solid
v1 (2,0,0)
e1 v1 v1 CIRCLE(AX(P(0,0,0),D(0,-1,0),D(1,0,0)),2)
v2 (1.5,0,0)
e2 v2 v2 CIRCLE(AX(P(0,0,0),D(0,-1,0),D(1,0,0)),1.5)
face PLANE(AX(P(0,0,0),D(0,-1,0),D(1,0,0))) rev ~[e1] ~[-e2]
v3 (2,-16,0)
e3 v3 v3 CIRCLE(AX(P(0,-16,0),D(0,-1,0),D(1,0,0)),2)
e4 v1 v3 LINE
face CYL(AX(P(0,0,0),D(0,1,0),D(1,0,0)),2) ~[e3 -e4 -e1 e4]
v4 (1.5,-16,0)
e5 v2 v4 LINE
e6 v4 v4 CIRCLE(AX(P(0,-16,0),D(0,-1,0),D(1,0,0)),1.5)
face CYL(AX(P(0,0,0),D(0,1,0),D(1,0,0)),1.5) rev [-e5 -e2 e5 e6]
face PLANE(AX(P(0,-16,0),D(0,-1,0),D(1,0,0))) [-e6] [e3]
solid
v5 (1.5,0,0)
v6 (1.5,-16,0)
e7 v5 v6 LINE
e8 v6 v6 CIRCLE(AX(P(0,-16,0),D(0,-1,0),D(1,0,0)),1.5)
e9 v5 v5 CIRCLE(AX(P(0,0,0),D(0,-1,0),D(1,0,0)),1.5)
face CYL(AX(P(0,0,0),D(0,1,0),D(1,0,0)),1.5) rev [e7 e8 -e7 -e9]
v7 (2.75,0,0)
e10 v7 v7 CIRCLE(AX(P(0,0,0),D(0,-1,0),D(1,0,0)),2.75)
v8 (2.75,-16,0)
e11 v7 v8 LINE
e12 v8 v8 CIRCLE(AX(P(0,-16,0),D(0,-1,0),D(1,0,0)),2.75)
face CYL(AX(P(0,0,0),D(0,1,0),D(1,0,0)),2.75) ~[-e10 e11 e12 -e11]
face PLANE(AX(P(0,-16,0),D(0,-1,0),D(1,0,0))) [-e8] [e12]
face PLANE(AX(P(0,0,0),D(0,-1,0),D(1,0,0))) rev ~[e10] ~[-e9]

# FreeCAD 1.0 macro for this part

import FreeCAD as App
import Part
import Sketcher

V = App.Vector
Q = App.Units.Quantity

doc = App.newDocument("Part")
body = doc.addObject("PartDesign::Body", "Body")

sketch1 = body.newObject("Sketcher::SketchObject", "Sketch")
sketch1.AttachmentSupport = (doc.getObject("XZ_Plane"), [""])
sketch1.MapMode = "FlatFace"
sketch1.addGeometry(Part.Circle(V(0, 0, 0), V(0, 0, 1), 2.8), False)
sketch1.addGeometry(Part.Circle(V(0, 0, 0), V(0, 0, 1), 1.5), False)
sketch1.addConstraint(Sketcher.Constraint("Coincident", 0, 3, -1, 1))
sketch1.addConstraint(Sketcher.Constraint("Coincident", 1, 3, -1, 1))
sketch1.addConstraint(Sketcher.Constraint("Diameter", 1, Q("3 mm")))
sketch1.addConstraint(Sketcher.Constraint("Diameter", 0, Q("5.5 mm")))
pad1 = body.newObject("PartDesign::Pad", "Pad")
pad1.Profile = sketch1
pad1.Length = 16
body2 = doc.addObject("PartDesign::Body", "Body001")

sketch2 = body2.newObject("Sketcher::SketchObject", "Sketch001")
sketch2.AttachmentSupport = (doc.getObject("XZ_Plane001"), [""])
sketch2.MapMode = "FlatFace"
sketch2.addGeometry(Part.Circle(V(0, 0, 0), V(0, 0, 1), 2), False)
sketch2.addGeometry(Part.Circle(V(0, 0, 0), V(0, 0, 1), 1.5), False)
sketch2.addConstraint(Sketcher.Constraint("Coincident", 0, 3, -1, 1))
sketch2.addConstraint(Sketcher.Constraint("Coincident", 1, 3, -1, 1))
sketch2.addConstraint(Sketcher.Constraint("Diameter", 0, Q("4 mm")))
sketch2.addConstraint(Sketcher.Constraint("Diameter", 1, Q("3 mm")))
pad2 = body2.newObject("PartDesign::Pad", "Pad001")
pad2.Profile = sketch2
pad2.Length = 16

doc.recompute()
